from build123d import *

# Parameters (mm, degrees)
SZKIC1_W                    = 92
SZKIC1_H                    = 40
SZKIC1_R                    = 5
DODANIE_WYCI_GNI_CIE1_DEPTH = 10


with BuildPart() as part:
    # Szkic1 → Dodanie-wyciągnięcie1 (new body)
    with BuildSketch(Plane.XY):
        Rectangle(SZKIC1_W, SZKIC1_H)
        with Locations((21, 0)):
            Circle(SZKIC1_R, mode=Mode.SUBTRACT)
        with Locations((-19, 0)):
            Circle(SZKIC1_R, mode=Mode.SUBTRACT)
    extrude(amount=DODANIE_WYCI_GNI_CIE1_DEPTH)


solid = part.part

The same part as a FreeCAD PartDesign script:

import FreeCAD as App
import Part
import Sketcher
from FreeCAD import Vector
Q = App.Units.Quantity


def add_polygon(sketch, points):
    """Adds a closed chain of lines whose ends are joined by coincident constraints."""
    first, n = sketch.GeometryCount, len(points)
    for a, b in zip(points, points[1:] + points[:1]):
        sketch.addGeometry(Part.LineSegment(App.Vector(*a, 0), App.Vector(*b, 0)), False)
    for i in range(n):
        sketch.addConstraint(Sketcher.Constraint("Coincident", first + i, 2, first + (i + 1) % n, 1))

doc = App.newDocument("Part")
body = doc.addObject("PartDesign::Body", "Body")

# Sketch on XY plane
sketch1 = body.newObject("Sketcher::SketchObject", "Sketch")
sketch1.AttachmentSupport = (doc.getObject("XY_Plane"), [""])
sketch1.MapMode = "FlatFace"
add_polygon(sketch1, [(-46, 20), (-46, -20), (46, -20), (46, 20)])  # lines 0-3
sketch1.addGeometry(Part.Circle(Vector(-19, 0, 0), Vector(0, 0, 1), 5), False)  # 4
sketch1.addGeometry(Part.Circle(Vector(21, 0, 0), Vector(0, 0, 1), 5), False)  # 5
sketch1.addConstraint([
    Sketcher.Constraint("Vertical", 0),
    Sketcher.Constraint("Horizontal", 1),
    Sketcher.Constraint("Vertical", 2),
    Sketcher.Constraint("Horizontal", 3),
    Sketcher.Constraint("Equal", 4, 5),
    Sketcher.Constraint("Symmetric", 0, 2, 2, 2, -1, 1),
    Sketcher.Constraint("PointOnObject", 4, 3, -1),
    Sketcher.Constraint("PointOnObject", 5, 3, -1),
    Sketcher.Constraint("Diameter", 4, Q("10 mm")),
    Sketcher.Constraint("DistanceX", 1, 1, 1, 2, Q("92 mm")),
    Sketcher.Constraint("DistanceY", 0, 2, 0, 1, Q("40 mm")),
    Sketcher.Constraint("DistanceX", 4, 3, -1, 1, Q("19 mm")),
    Sketcher.Constraint("DistanceX", -1, 1, 5, 3, Q("21 mm")),
])
pad1 = body.newObject("PartDesign::Pad", "Pad")
pad1.Profile = sketch1
pad1.Length = 10

doc.recompute()
